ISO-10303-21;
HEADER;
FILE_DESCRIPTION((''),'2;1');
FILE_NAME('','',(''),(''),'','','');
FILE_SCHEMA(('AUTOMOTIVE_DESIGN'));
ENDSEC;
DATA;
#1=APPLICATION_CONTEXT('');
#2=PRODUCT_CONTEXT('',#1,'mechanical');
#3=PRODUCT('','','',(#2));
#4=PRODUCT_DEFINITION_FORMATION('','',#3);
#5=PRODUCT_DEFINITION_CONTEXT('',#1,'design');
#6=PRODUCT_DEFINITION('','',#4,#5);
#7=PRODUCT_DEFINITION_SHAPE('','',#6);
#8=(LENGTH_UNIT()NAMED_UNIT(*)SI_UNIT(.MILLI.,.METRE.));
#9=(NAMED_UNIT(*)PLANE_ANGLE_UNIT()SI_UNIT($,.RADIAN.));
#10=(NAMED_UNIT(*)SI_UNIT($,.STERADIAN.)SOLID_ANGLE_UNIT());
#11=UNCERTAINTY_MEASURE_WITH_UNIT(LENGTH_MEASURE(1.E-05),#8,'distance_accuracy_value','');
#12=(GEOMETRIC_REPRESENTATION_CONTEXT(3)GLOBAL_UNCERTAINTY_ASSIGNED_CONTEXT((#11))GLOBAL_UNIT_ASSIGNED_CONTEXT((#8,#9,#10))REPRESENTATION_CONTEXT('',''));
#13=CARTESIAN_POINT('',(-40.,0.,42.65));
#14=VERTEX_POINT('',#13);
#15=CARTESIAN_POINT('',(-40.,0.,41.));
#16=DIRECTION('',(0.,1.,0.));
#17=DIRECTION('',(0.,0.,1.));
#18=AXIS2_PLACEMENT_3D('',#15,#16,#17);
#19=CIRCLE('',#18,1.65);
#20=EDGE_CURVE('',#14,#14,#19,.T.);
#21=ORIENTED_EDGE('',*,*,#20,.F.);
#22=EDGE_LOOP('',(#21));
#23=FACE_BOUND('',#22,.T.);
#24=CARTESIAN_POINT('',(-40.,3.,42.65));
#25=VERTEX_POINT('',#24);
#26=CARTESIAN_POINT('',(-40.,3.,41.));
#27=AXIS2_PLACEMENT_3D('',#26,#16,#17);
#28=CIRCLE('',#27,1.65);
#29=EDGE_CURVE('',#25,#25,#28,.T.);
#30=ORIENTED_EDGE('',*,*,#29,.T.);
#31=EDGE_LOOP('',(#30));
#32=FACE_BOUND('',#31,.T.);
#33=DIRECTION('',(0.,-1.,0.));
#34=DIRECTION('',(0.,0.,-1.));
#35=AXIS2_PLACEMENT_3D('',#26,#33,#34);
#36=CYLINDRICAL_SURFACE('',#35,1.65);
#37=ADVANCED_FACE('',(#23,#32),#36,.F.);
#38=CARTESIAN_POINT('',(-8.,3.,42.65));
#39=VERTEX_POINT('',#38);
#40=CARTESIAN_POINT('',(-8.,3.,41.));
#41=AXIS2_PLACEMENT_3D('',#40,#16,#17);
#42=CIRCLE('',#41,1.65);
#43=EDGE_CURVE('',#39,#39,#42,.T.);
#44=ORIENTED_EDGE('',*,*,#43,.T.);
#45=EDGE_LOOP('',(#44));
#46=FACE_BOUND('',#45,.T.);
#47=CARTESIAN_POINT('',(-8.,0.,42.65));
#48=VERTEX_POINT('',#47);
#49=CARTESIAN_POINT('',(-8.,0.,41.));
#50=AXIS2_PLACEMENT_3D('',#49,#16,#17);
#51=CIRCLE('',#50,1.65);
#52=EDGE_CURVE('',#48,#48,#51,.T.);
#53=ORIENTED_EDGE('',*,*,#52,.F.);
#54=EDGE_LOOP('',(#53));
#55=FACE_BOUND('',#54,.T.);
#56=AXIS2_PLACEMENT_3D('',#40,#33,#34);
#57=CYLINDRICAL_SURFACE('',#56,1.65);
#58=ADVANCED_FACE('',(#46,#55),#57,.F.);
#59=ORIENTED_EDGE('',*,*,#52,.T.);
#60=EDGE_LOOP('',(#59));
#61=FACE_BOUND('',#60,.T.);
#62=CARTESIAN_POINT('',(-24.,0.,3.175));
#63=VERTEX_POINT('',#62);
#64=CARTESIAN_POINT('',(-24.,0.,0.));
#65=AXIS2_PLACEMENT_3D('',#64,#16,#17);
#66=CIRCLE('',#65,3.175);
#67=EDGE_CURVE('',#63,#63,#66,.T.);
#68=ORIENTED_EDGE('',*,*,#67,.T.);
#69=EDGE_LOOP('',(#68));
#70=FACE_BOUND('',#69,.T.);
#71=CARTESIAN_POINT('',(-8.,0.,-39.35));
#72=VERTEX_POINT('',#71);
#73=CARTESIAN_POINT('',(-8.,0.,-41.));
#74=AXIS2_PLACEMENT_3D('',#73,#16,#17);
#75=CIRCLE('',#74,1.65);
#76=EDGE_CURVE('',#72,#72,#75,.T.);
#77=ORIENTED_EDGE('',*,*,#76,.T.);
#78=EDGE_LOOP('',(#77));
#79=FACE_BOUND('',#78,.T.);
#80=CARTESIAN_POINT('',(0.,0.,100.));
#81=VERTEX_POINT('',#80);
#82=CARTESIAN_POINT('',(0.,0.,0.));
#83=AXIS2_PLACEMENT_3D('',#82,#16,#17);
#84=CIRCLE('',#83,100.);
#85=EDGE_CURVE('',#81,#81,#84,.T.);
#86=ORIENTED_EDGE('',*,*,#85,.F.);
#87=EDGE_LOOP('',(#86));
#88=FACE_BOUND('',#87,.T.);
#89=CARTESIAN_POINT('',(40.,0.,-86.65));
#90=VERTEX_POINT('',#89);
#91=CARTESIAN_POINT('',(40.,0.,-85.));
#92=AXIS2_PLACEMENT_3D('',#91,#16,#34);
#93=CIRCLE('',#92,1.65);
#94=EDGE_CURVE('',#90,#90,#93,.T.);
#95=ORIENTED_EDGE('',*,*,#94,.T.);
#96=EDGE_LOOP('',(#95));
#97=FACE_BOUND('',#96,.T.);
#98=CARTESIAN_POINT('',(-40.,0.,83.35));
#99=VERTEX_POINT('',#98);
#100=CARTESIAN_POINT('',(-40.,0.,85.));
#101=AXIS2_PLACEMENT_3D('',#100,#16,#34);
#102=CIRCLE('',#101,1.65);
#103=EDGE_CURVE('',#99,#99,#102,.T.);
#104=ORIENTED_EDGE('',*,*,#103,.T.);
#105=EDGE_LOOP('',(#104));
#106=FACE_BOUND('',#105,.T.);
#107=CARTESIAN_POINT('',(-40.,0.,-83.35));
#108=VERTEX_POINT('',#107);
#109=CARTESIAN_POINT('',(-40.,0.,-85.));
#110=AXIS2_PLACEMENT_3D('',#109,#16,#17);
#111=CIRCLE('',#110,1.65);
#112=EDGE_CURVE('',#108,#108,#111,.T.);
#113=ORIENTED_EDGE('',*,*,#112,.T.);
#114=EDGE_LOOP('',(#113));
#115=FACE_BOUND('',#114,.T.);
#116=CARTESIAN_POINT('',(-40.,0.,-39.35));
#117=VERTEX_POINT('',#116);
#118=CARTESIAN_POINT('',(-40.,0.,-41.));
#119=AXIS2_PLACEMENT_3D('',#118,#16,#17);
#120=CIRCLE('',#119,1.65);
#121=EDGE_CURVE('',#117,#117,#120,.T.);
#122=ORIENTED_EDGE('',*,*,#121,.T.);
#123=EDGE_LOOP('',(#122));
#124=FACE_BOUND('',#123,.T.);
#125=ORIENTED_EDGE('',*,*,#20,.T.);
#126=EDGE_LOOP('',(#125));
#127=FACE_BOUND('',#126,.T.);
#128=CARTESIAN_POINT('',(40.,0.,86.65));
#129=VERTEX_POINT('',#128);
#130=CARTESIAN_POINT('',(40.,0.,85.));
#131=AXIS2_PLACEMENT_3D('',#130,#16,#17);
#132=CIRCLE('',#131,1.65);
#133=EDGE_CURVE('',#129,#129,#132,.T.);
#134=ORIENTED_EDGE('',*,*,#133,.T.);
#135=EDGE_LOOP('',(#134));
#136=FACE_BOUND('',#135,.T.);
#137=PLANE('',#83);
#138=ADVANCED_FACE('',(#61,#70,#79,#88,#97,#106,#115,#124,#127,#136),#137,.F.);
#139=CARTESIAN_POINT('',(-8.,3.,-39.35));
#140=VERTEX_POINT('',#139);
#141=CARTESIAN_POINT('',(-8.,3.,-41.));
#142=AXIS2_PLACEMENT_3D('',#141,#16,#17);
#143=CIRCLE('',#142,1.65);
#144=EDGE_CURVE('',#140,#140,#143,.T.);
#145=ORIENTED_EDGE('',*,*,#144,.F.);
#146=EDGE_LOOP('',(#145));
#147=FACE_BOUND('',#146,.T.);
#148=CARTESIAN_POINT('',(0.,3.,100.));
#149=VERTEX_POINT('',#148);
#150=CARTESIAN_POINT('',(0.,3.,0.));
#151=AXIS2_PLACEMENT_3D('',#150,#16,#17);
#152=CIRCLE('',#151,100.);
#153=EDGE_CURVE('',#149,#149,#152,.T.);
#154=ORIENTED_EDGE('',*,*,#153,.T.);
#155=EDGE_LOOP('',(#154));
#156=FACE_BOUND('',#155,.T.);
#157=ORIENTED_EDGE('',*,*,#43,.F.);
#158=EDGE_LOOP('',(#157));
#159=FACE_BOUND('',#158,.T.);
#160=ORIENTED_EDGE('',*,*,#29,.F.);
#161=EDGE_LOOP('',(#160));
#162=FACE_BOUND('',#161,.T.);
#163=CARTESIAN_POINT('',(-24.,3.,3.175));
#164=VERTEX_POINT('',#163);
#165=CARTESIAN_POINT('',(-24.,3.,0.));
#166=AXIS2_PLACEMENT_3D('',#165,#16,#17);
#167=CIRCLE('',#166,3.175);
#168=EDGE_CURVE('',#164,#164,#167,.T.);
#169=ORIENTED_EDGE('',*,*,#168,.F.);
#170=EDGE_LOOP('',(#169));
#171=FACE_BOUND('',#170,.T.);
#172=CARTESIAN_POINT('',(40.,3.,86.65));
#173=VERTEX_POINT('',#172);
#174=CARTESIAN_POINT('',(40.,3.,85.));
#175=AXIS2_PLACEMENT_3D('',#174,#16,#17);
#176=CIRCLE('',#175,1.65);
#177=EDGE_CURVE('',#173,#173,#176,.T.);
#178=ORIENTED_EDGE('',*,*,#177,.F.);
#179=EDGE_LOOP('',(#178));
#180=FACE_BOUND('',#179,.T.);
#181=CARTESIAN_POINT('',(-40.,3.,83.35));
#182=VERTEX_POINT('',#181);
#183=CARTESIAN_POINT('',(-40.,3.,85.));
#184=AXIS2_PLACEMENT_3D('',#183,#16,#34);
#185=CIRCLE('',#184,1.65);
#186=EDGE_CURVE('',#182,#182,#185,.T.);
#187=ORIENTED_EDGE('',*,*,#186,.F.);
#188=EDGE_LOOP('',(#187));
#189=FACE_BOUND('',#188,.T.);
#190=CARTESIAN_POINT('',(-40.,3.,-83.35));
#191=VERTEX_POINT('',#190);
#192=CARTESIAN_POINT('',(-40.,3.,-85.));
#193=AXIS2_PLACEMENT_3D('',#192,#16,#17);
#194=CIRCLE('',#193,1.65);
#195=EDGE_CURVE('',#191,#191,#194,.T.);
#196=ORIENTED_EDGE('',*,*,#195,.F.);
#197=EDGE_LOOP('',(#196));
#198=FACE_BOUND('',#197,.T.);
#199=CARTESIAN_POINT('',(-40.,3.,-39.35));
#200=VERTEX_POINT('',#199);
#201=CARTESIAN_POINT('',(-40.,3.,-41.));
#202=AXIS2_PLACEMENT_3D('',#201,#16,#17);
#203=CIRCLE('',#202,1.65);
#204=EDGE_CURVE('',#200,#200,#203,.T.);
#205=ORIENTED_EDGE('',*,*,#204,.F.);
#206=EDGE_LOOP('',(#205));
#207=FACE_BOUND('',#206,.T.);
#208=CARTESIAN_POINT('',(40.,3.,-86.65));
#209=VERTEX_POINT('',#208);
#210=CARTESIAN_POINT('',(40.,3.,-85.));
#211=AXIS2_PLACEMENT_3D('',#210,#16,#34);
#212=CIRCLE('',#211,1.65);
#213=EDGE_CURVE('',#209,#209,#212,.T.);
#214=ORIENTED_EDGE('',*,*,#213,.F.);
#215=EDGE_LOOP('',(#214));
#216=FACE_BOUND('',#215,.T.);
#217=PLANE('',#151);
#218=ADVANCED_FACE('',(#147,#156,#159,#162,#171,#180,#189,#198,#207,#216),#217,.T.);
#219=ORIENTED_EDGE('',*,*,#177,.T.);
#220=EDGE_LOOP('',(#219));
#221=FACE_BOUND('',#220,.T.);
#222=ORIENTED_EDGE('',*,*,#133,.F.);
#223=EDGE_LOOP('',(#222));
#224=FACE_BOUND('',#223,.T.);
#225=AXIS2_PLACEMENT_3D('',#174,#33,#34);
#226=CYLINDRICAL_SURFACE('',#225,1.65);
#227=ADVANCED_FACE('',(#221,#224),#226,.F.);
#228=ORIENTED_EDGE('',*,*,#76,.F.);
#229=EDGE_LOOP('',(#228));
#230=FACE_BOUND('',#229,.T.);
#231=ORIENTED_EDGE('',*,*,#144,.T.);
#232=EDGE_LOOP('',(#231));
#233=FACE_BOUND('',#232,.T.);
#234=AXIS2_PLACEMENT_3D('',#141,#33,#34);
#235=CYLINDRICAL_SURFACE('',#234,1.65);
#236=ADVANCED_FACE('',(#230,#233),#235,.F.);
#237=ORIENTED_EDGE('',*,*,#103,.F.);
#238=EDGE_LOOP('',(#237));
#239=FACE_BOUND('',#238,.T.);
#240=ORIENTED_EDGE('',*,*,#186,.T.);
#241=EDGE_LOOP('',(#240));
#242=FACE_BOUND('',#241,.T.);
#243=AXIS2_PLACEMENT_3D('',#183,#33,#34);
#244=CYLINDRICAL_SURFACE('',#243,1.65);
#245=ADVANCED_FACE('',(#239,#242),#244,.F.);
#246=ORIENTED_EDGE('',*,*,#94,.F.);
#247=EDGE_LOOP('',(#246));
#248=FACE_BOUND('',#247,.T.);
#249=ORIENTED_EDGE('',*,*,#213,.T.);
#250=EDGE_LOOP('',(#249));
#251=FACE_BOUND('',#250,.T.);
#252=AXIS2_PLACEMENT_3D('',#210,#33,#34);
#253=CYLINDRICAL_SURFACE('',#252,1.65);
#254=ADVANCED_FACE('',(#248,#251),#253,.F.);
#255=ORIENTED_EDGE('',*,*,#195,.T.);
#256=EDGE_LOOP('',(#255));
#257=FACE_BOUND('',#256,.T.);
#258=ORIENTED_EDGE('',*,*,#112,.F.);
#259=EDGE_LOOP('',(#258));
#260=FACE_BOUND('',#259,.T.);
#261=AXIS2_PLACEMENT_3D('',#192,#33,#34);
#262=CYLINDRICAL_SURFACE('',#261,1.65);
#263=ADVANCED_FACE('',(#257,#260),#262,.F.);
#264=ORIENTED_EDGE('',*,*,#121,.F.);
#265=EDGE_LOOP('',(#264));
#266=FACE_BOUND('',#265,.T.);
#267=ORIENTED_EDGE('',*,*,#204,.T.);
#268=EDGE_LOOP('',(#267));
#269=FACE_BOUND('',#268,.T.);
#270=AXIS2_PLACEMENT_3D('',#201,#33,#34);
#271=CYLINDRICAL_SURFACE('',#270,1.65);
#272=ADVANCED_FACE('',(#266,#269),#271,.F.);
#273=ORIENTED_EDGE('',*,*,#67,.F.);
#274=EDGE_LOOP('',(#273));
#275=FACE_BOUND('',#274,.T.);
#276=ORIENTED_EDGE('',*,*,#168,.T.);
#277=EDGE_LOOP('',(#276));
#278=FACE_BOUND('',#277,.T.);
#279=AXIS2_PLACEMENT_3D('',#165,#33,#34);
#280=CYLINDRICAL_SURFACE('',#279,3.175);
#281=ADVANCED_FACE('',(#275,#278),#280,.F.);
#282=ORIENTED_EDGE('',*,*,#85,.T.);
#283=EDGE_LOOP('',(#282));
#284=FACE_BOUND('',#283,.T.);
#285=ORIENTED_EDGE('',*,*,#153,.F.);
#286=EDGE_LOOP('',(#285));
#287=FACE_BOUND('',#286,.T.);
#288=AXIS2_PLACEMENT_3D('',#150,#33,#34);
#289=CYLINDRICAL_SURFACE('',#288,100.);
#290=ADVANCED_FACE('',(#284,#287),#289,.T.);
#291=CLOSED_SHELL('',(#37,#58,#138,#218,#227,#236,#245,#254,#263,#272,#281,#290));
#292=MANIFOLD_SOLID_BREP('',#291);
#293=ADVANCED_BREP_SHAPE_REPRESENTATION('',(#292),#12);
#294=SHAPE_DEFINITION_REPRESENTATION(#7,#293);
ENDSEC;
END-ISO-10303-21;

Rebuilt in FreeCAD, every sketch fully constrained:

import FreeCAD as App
import Part
import Sketcher

V = App.Vector

doc = App.newDocument("Part")
body = doc.addObject("PartDesign::Body", "Body")

# Sketch on XZ plane
sketch1 = body.newObject("Sketcher::SketchObject", "Sketch")
sketch1.AttachmentSupport = (doc.getObject("XZ_Plane"), [""])
sketch1.MapMode = "FlatFace"
sketch1.addGeometry(Part.Circle(V(0, 0, 0), V(0, 0, 1), 100), False)
sketch1.addGeometry(Part.Circle(V(-40, -85, 0), V(0, 0, 1), 1.6), False)
sketch1.addGeometry(Part.Circle(V(-40, -41, 0), V(0, 0, 1), 1.6), False)
sketch1.addGeometry(Part.Circle(V(-8, -41, 0), V(0, 0, 1), 1.6), False)
sketch1.addGeometry(Part.Circle(V(-40, 41, 0), V(0, 0, 1), 1.6), False)
sketch1.addGeometry(Part.Circle(V(-24, 0, 0), V(0, 0, 1), 3.2), False)
sketch1.addGeometry(Part.Circle(V(-40, 85, 0), V(0, 0, 1), 1.6), False)
sketch1.addGeometry(Part.Circle(V(-8, 41, 0), V(0, 0, 1), 1.6), False)
sketch1.addGeometry(Part.Circle(V(40, -85, 0), V(0, 0, 1), 1.6), False)
sketch1.addGeometry(Part.Circle(V(40, 85, 0), V(0, 0, 1), 1.6), False)
sketch1.addConstraint(Sketcher.Constraint("Coincident", 0, 3, -1, 1))
sketch1.addConstraint(Sketcher.Constraint("Equal", 1, 2))
sketch1.addConstraint(Sketcher.Constraint("Equal", 2, 3))
sketch1.addConstraint(Sketcher.Constraint("Equal", 3, 4))
sketch1.addConstraint(Sketcher.Constraint("Equal", 4, 6))
sketch1.addConstraint(Sketcher.Constraint("Equal", 6, 7))
sketch1.addConstraint(Sketcher.Constraint("Equal", 7, 8))
sketch1.addConstraint(Sketcher.Constraint("Equal", 8, 9))
sketch1.addConstraint(Sketcher.Constraint("Symmetric", 6, 3, 8, 3, -1, 1))
sketch1.addConstraint(Sketcher.Constraint("Symmetric", 1, 3, 9, 3, -1, 1))
sketch1.addConstraint(Sketcher.Constraint("Symmetric", 1, 3, 8, 3, -2))
sketch1.addConstraint(Sketcher.Constraint("Symmetric", 2, 3, 4, 3, -1))
sketch1.addConstraint(Sketcher.Constraint("Symmetric", 3, 3, 7, 3, -1))
sketch1.addConstraint(Sketcher.Constraint("PointOnObject", 5, 3, -1))
sketch1.addConstraint(Sketcher.Constraint("Horizontal", 2, 3, 3, 3))
sketch1.addConstraint(Sketcher.Constraint("Vertical", 1, 3, 2, 3))
sketch1.addConstraint(Sketcher.Constraint("Diameter", 0, 200.0))
sketch1.addConstraint(Sketcher.Constraint("Diameter", 1, 3.3))
sketch1.addConstraint(Sketcher.Constraint("Diameter", 5, 6.35))
sketch1.addConstraint(Sketcher.Constraint("DistanceX", 1, 3, -1, 1, 40.0))
sketch1.addConstraint(Sketcher.Constraint("DistanceY", 1, 3, -1, 1, 85.0))
sketch1.addConstraint(Sketcher.Constraint("DistanceY", 2, 3, -1, 1, 41.0))
sketch1.addConstraint(Sketcher.Constraint("DistanceX", 3, 3, -1, 1, 8.0))
sketch1.addConstraint(Sketcher.Constraint("DistanceX", 5, 3, -1, 1, 24.0))
pad1 = body.newObject("PartDesign::Pad", "Pad")
pad1.Profile = sketch1
pad1.Length = 3
pad1.Reversed = True

doc.recompute()
